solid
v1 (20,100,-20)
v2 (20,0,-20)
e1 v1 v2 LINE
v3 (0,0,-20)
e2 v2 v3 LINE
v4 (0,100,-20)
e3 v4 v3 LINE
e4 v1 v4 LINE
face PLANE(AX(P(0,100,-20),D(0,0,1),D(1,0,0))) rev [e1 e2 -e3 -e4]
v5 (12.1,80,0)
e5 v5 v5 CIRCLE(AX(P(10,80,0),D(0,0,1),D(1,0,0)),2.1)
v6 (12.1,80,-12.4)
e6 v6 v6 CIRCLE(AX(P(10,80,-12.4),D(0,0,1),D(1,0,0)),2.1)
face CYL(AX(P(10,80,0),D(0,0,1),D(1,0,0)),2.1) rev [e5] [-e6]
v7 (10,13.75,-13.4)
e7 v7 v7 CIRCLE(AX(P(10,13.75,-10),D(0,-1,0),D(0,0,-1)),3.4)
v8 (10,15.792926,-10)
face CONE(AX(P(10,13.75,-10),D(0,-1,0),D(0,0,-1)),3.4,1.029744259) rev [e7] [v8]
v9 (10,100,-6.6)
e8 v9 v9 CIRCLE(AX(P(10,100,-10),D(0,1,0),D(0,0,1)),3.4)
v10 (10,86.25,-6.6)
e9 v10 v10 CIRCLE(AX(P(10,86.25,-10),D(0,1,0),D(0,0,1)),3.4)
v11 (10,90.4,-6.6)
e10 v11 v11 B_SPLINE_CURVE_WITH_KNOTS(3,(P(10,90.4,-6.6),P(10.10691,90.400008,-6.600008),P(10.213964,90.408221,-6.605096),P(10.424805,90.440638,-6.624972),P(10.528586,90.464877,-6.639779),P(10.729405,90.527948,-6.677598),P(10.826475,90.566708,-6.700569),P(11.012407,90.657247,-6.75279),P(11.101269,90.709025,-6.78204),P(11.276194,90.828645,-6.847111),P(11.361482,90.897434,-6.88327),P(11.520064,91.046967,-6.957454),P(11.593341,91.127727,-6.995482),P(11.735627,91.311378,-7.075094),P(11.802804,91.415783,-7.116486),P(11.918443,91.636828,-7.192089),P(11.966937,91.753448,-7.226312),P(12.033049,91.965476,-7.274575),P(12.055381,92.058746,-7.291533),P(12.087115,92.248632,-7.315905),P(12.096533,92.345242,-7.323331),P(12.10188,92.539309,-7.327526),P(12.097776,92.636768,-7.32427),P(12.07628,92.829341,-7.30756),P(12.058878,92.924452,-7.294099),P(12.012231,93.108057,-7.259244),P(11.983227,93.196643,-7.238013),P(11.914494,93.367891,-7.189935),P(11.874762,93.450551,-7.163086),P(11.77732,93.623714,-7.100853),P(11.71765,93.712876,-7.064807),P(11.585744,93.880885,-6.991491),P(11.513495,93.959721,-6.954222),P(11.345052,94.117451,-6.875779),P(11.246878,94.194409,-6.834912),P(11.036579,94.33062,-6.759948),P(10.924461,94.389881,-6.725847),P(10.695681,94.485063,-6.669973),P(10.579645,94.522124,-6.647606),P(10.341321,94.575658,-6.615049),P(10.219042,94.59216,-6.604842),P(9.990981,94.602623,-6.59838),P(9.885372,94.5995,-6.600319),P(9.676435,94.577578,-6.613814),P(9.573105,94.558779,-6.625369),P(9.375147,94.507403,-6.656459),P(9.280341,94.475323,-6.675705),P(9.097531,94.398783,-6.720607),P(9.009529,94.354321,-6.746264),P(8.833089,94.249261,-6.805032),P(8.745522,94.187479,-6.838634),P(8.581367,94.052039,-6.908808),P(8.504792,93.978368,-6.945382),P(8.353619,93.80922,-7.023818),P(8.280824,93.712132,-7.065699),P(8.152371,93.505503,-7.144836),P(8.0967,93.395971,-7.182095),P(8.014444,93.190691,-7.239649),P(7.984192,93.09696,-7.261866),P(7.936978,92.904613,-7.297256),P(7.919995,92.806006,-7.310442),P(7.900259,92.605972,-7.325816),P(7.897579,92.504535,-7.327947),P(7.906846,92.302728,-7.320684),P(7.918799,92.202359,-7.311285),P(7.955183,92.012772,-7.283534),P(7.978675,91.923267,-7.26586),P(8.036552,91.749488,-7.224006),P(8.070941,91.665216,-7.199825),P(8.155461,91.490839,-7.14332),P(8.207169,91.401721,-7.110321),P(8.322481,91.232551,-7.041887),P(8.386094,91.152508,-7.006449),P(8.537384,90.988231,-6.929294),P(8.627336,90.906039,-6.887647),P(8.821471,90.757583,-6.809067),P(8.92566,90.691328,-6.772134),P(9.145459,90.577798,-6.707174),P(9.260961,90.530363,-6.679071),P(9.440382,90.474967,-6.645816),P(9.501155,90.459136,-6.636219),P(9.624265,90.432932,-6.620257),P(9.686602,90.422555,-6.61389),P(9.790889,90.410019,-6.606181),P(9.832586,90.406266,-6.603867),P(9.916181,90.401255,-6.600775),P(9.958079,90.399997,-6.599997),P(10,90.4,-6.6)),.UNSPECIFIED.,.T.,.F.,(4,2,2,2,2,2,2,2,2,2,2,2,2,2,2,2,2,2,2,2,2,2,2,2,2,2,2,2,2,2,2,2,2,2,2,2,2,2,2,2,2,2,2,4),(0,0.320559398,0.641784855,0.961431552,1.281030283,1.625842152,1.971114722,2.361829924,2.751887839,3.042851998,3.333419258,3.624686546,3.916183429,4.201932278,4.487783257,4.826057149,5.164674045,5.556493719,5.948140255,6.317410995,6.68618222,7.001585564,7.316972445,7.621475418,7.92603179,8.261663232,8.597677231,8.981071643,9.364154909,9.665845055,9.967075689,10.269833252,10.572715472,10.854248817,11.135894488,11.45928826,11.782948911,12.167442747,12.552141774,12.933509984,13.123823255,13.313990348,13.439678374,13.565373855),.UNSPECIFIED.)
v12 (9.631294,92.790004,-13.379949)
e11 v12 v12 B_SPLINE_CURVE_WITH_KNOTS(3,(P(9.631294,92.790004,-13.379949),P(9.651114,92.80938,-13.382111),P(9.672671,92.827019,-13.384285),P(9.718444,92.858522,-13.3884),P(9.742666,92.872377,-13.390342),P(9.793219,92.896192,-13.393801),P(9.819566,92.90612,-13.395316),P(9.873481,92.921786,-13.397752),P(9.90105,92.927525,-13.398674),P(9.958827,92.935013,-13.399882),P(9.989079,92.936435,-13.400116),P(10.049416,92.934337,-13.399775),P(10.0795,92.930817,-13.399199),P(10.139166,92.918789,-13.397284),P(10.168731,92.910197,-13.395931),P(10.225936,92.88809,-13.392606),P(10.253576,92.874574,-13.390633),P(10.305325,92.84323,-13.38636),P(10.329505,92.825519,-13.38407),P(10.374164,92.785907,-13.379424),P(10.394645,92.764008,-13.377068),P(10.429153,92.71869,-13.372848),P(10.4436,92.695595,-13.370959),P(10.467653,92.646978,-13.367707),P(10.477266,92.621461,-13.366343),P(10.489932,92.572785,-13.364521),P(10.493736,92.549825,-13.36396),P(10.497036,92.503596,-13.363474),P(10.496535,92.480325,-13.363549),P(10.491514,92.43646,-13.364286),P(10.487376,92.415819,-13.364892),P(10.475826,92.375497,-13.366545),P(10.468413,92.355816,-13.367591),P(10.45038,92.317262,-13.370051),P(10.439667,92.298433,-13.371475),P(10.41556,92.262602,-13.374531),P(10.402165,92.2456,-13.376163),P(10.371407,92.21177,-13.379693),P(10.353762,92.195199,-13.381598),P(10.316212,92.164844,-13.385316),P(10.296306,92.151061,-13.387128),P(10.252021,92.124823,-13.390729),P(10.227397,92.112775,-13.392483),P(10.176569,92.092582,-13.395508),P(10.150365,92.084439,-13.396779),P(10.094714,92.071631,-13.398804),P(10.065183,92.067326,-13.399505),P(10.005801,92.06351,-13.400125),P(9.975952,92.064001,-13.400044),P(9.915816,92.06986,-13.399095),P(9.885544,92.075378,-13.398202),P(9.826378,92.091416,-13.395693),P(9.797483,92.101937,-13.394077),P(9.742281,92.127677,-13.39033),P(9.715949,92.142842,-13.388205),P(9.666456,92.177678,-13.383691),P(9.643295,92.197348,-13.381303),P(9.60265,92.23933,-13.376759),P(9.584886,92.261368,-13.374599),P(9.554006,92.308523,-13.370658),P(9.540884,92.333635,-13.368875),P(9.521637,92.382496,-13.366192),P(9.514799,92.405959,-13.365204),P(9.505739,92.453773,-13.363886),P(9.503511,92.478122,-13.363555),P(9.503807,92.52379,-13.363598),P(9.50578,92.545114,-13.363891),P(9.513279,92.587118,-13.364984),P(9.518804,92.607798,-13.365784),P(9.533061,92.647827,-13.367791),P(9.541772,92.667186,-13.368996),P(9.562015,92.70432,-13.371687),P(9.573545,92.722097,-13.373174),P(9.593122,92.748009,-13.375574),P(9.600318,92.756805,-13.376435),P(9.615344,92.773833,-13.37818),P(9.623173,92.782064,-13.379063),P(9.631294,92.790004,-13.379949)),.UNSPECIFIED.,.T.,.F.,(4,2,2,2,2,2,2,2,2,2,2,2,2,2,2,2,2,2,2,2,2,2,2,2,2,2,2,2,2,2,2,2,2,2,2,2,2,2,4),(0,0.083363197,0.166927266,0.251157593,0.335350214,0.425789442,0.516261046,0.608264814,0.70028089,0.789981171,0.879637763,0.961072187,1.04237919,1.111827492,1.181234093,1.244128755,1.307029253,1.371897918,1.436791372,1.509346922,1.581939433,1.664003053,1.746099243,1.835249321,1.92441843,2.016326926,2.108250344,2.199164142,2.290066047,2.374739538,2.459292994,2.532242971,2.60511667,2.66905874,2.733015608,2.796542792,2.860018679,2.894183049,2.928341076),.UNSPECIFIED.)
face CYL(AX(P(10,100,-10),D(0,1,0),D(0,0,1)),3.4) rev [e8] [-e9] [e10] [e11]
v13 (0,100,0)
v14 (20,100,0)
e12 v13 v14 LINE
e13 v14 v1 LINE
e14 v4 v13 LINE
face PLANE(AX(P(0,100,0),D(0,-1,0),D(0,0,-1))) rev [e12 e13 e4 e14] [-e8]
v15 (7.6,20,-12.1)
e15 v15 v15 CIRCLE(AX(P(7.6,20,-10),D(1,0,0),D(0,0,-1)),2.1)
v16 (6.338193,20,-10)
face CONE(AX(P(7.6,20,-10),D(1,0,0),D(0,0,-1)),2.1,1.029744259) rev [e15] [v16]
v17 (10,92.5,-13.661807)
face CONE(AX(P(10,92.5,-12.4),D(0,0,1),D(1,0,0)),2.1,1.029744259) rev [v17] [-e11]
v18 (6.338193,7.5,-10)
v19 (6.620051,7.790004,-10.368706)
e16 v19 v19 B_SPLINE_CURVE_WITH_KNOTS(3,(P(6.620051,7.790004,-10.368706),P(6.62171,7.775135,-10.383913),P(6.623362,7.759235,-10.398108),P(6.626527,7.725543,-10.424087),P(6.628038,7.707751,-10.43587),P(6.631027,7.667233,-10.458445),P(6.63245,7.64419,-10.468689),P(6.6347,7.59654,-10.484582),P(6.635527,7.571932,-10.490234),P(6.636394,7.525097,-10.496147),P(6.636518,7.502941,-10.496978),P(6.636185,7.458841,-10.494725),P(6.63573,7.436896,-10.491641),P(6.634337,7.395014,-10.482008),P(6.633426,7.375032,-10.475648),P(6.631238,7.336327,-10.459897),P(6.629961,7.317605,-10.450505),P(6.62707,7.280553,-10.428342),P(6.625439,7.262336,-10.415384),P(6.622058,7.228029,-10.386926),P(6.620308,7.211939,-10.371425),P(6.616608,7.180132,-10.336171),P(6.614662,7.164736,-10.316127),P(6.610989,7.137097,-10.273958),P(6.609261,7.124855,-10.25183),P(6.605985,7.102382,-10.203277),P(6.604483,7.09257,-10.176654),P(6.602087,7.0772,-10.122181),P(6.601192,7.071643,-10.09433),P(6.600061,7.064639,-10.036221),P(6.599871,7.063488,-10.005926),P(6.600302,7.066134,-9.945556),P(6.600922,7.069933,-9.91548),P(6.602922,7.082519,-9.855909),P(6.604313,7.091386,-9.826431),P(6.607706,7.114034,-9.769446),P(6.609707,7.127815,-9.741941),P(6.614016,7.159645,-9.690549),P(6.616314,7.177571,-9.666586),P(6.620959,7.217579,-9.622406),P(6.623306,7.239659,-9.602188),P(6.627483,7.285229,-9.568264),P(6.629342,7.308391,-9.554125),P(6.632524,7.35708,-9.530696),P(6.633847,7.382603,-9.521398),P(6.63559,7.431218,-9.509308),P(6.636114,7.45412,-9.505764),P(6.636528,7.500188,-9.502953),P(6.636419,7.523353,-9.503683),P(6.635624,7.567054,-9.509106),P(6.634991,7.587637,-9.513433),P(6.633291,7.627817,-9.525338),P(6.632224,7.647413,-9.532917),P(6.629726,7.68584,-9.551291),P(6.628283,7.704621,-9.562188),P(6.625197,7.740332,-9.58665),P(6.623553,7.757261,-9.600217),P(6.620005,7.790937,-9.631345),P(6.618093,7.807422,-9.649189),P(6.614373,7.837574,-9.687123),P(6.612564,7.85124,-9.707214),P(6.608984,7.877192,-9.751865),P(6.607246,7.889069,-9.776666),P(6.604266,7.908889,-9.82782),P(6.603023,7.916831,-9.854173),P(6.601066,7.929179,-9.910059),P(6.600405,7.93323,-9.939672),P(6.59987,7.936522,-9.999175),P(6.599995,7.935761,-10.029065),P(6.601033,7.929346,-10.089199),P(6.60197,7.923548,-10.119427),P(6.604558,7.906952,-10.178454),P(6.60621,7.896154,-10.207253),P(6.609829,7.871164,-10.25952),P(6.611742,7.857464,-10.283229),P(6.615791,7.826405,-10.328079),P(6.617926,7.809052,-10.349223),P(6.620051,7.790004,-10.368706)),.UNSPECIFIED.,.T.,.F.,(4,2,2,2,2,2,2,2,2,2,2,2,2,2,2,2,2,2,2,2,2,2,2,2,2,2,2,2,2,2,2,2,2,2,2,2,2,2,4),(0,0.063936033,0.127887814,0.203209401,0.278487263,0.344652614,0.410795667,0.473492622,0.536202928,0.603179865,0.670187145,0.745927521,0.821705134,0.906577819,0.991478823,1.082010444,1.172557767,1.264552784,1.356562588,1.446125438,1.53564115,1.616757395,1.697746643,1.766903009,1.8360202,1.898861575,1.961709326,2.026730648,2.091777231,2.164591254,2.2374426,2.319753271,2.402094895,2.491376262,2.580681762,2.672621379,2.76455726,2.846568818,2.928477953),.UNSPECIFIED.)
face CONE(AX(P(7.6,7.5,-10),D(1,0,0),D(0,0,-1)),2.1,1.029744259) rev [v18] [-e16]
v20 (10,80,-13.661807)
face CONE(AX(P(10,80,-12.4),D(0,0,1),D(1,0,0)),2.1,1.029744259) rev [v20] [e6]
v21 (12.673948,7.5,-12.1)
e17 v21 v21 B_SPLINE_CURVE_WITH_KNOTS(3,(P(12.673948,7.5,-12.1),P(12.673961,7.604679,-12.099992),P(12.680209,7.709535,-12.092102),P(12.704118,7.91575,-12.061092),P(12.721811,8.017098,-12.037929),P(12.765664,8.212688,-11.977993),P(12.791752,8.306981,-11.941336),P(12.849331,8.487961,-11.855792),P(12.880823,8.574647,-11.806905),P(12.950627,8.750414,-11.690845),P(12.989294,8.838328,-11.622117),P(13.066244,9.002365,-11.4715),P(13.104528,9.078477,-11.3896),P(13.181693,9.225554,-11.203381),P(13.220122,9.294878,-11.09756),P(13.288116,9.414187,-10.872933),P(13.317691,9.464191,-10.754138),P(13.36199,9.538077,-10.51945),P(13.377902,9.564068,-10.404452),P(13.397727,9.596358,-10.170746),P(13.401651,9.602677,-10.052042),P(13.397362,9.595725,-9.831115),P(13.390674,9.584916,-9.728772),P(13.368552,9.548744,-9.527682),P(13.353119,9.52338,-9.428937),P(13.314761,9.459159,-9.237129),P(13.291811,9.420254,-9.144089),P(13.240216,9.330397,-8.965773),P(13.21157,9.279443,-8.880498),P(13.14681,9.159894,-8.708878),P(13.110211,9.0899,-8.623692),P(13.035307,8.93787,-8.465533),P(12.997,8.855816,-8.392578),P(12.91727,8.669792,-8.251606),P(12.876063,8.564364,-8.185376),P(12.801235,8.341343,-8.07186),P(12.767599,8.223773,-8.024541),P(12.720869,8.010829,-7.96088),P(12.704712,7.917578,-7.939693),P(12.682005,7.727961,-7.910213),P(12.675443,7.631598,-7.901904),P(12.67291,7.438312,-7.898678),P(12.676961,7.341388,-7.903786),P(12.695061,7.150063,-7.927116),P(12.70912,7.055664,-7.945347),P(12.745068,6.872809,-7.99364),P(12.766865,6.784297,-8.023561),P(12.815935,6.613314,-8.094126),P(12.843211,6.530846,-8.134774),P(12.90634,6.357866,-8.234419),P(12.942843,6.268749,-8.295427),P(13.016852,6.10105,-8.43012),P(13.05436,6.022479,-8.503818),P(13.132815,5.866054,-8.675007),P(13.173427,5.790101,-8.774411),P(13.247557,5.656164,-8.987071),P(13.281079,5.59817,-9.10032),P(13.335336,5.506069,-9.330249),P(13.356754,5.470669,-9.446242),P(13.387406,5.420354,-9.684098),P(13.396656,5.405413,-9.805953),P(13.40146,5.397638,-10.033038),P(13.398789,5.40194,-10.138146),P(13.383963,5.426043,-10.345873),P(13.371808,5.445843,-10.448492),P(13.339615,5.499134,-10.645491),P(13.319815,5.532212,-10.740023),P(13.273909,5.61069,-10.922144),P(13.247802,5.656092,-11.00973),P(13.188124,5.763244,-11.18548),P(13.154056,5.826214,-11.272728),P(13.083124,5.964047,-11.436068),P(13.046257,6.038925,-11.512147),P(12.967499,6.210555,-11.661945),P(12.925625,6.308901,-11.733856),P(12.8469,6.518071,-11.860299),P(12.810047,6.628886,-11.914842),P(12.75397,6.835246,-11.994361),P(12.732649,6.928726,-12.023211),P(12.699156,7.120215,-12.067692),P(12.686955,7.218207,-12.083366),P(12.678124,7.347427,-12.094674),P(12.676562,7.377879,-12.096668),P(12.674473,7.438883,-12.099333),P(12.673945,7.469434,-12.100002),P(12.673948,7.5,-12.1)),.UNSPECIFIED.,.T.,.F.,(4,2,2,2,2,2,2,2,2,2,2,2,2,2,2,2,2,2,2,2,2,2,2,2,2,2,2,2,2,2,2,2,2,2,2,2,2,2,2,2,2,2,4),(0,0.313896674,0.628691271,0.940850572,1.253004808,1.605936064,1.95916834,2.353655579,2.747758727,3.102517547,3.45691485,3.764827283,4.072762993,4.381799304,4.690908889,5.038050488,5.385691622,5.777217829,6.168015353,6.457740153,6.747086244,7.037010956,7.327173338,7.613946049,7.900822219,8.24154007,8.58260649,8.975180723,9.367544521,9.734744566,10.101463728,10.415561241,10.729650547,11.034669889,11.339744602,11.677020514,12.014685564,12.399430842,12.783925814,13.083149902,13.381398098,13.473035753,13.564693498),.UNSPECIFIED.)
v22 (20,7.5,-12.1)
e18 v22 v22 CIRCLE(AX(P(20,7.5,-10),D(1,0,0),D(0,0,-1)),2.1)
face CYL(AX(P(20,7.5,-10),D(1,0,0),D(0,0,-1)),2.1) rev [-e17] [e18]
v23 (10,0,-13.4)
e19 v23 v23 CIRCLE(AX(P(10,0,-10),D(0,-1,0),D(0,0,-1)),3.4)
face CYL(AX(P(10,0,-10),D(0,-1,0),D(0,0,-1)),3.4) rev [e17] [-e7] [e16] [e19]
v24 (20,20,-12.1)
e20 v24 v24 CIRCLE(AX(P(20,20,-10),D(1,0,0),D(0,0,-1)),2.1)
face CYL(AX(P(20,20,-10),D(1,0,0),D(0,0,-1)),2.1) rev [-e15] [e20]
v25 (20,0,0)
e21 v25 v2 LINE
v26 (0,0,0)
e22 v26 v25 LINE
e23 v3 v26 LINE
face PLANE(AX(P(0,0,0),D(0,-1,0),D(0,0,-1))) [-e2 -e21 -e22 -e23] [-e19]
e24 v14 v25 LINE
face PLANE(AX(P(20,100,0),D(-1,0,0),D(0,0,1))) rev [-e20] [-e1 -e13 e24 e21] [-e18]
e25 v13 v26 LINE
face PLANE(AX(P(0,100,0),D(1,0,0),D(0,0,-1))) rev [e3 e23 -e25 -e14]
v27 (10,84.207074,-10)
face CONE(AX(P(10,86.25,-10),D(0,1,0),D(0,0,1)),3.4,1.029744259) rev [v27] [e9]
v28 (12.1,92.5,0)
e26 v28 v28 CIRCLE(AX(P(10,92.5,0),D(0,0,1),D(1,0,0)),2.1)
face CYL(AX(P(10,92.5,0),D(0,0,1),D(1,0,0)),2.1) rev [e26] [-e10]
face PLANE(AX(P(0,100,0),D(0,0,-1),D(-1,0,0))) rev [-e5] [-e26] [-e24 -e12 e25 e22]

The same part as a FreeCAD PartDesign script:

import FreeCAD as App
import Part
import Sketcher
Q = App.Units.Quantity

doc = App.newDocument("Part")
body = doc.addObject("PartDesign::Body", "Body")

# Sketch on XZ plane
sketch1 = doc.addObject("Sketcher::SketchObject", "Sketch")
body.addObject(sketch1)
sketch1.AttachmentSupport = (doc.XZ_Plane, [""])
sketch1.MapMode = "FlatFace"
sketch1.addGeometry(Part.LineSegment(App.Vector(0, -20, 0), App.Vector(0, 0, 0)), False)
sketch1.addGeometry(Part.LineSegment(App.Vector(0, 0, 0), App.Vector(20, 0, 0)), False)
sketch1.addGeometry(Part.LineSegment(App.Vector(20, 0, 0), App.Vector(20, -20, 0)), False)
sketch1.addGeometry(Part.LineSegment(App.Vector(20, -20, 0), App.Vector(0, -20, 0)), False)
sketch1.addConstraint(Sketcher.Constraint("Coincident", 0, 2, 1, 1))
sketch1.addConstraint(Sketcher.Constraint("Coincident", 1, 2, 2, 1))
sketch1.addConstraint(Sketcher.Constraint("Coincident", 2, 2, 3, 1))
sketch1.addConstraint(Sketcher.Constraint("Coincident", 3, 2, 0, 1))
sketch1.addConstraint(Sketcher.Constraint("Vertical", 0))
sketch1.addConstraint(Sketcher.Constraint("Horizontal", 1))
sketch1.addConstraint(Sketcher.Constraint("Vertical", 2))
sketch1.addConstraint(Sketcher.Constraint("Horizontal", 3))
sketch1.addConstraint(Sketcher.Constraint("Coincident", 0, 2, -1, 1))
sketch1.addConstraint(Sketcher.Constraint("Equal", 3, 0))
sketch1.addConstraint(Sketcher.Constraint("DistanceX", 1, 1, 1, 2, Q("20 mm")))
pad1 = doc.addObject("PartDesign::Pad", "Pad")
body.addObject(pad1)
pad1.Profile = sketch1
pad1.Length = 100
pad1.Reversed = True

# Sketch on YZ plane
sketch2 = doc.addObject("Sketcher::SketchObject", "Sketch001")
body.addObject(sketch2)
sketch2.AttachmentSupport = (doc.YZ_Plane, [""])
sketch2.MapMode = "FlatFace"
sketch2.AttachmentOffset = App.Placement(App.Vector(0, 0, 10), App.Rotation())
sketch2.addGeometry(Part.LineSegment(App.Vector(84.2, -10, 0), App.Vector(100, -10, 0)), False)
sketch2.addGeometry(Part.LineSegment(App.Vector(100, -10, 0), App.Vector(100, -6.6, 0)), False)
sketch2.addGeometry(Part.LineSegment(App.Vector(100, -6.6, 0), App.Vector(86.2, -6.6, 0)), False)
sketch2.addGeometry(Part.LineSegment(App.Vector(86.2, -6.6, 0), App.Vector(84.2, -10, 0)), False)
sketch2.addGeometry(Part.LineSegment(App.Vector(100, -10, 0), App.Vector(84.2, -10, 0)), True)  # axis
sketch2.addConstraint(Sketcher.Constraint("Coincident", 0, 2, 1, 1))
sketch2.addConstraint(Sketcher.Constraint("Coincident", 1, 2, 2, 1))
sketch2.addConstraint(Sketcher.Constraint("Coincident", 2, 2, 3, 1))
sketch2.addConstraint(Sketcher.Constraint("Coincident", 3, 2, 0, 1))
sketch2.addConstraint(Sketcher.Constraint("Horizontal", 0))
sketch2.addConstraint(Sketcher.Constraint("Vertical", 1))
sketch2.addConstraint(Sketcher.Constraint("Horizontal", 2))
sketch2.addConstraint(Sketcher.Constraint("Horizontal", 4))
sketch2.addConstraint(Sketcher.Constraint("Coincident", 4, 1, 0, 2))
sketch2.addConstraint(Sketcher.Constraint("Equal", 0, 4))
sketch2.addConstraint(Sketcher.Constraint("Angle", 3, Q("-121 deg")))
sketch2.addConstraint(Sketcher.Constraint("DistanceY", 1, 1, 1, 2, Q("3.4 mm")))
sketch2.addConstraint(Sketcher.Constraint("DistanceX", -1, 1, 0, 2, Q("100 mm")))
sketch2.addConstraint(Sketcher.Constraint("DistanceY", 0, 2, -1, 1, Q("10 mm")))
sketch2.addConstraint(Sketcher.Constraint("DistanceX", 2, 2, 2, 1, Q("13.75 mm")))
groove = doc.addObject("PartDesign::Groove", "Groove")
body.addObject(groove)
groove.Profile = sketch2
groove.ReferenceAxis = (sketch2, ["Axis0"])
groove.Angle = 360
doc.recompute()

datumplane = doc.addObject("PartDesign::Plane", "DatumPlane")
body.addObject(datumplane)
datumplane.AttachmentSupport = (doc.XZ_Plane, [""])
datumplane.MapMode = "FlatFace"
datumplane.AttachmentOffset = App.Placement(App.Vector(0, 0, -50), App.Rotation())
mirrored = doc.addObject("PartDesign::Mirrored", "Mirrored")
body.addObject(mirrored)
mirrored.Originals = [groove]
mirrored.MirrorPlane = (datumplane, [""])
body.Tip = mirrored

# Sketch on XY plane
sketch3 = doc.addObject("Sketcher::SketchObject", "Sketch002")
body.addObject(sketch3)
sketch3.AttachmentSupport = (doc.XY_Plane, [""])
sketch3.MapMode = "FlatFace"
sketch3.addGeometry(Part.Circle(App.Vector(10, 80, 0), App.Vector(0, 0, 1), 2.1), False)
sketch3.addGeometry(Part.Circle(App.Vector(10, 92.5, 0), App.Vector(0, 0, 1), 2.1), False)
sketch3.addConstraint(Sketcher.Constraint("Equal", 0, 1))
sketch3.addConstraint(Sketcher.Constraint("Vertical", 0, 3, 1, 3))
sketch3.addConstraint(Sketcher.Constraint("Diameter", 0, Q("4.2 mm")))
sketch3.addConstraint(Sketcher.Constraint("DistanceX", -1, 1, 0, 3, Q("10 mm")))
sketch3.addConstraint(Sketcher.Constraint("DistanceY", -1, 1, 0, 3, Q("80 mm")))
sketch3.addConstraint(Sketcher.Constraint("DistanceY", -1, 1, 1, 3, Q("92.5 mm")))
doc.recompute()
hole = doc.addObject("PartDesign::Hole", "Hole")
body.addObject(hole)
hole.Profile = sketch3
hole.ThreadType = "None"
hole.Diameter = 4.2
hole.DepthType = "Dimension"
hole.Depth = 12.4
hole.DrillPoint = "Angled"
hole.DrillPointAngle = 118

# Sketch on YZ plane
sketch4 = doc.addObject("Sketcher::SketchObject", "Sketch003")
body.addObject(sketch4)
sketch4.AttachmentSupport = (doc.YZ_Plane, [""])
sketch4.MapMode = "FlatFace"
sketch4.AttachmentOffset = App.Placement(App.Vector(0, 0, 20), App.Rotation())
sketch4.addGeometry(Part.Circle(App.Vector(7.5, -10, 0), App.Vector(0, 0, 1), 2.1), False)
sketch4.addGeometry(Part.Circle(App.Vector(20, -10, 0), App.Vector(0, 0, 1), 2.1), False)
sketch4.addConstraint(Sketcher.Constraint("Equal", 0, 1))
sketch4.addConstraint(Sketcher.Constraint("Horizontal", 0, 3, 1, 3))
sketch4.addConstraint(Sketcher.Constraint("Diameter", 0, Q("4.2 mm")))
sketch4.addConstraint(Sketcher.Constraint("DistanceY", 0, 3, -1, 1, Q("10 mm")))
sketch4.addConstraint(Sketcher.Constraint("DistanceX", -1, 1, 1, 3, Q("20 mm")))
sketch4.addConstraint(Sketcher.Constraint("DistanceX", -1, 1, 0, 3, Q("7.5 mm")))
doc.recompute()
hole2 = doc.addObject("PartDesign::Hole", "Hole001")
body.addObject(hole2)
hole2.Profile = sketch4
hole2.ThreadType = "None"
hole2.Diameter = 4.2
hole2.DepthType = "Dimension"
hole2.Depth = 12.4
hole2.DrillPoint = "Angled"
hole2.DrillPointAngle = 118

doc.recompute()
